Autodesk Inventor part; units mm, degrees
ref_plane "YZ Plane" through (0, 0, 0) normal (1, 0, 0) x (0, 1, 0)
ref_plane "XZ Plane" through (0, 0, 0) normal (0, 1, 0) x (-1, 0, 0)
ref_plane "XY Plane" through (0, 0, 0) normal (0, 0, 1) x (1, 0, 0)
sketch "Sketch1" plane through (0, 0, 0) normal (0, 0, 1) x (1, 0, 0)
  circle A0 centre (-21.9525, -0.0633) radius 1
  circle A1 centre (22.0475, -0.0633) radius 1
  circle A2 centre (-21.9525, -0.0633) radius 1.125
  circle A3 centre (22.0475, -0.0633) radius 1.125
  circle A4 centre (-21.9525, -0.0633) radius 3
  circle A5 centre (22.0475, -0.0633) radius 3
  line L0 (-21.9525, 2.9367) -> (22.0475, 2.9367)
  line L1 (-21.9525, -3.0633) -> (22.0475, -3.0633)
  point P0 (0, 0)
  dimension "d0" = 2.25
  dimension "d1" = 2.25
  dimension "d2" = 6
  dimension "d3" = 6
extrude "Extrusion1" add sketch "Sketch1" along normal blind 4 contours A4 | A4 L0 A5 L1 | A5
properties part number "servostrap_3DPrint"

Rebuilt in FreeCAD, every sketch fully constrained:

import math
import FreeCAD as App
import Part
import Sketcher
from FreeCAD import Vector
Q = App.Units.Quantity

doc = App.newDocument("Part")
body = doc.addObject("PartDesign::Body", "Body")

sketch1 = body.newObject("Sketcher::SketchObject", "Sketch")
sketch1.AttachmentSupport = (doc.getObject("XY_Plane"), [""])
sketch1.MapMode = "FlatFace"
sketch1.addGeometry([
    Part.ArcOfCircle(Part.Circle(Vector(-22, -0.1, 0), Vector(0, 0, 1), 3), math.radians(90), math.radians(270)),
    Part.LineSegment(Vector(-22, -3.1, 0), Vector(22, -3.1, 0)),
    Part.ArcOfCircle(Part.Circle(Vector(22, -0.1, 0), Vector(0, 0, 1), 3), math.radians(-90), math.radians(90)),
    Part.LineSegment(Vector(22, 2.9, 0), Vector(-22, 2.9, 0)),
    Part.Circle(Vector(-22, -0.1, 0), Vector(0, 0, 1), 1.1),
    Part.Circle(Vector(22, -0.1, 0), Vector(0, 0, 1), 1.1),
], False)
sketch1.addConstraint([
    Sketcher.Constraint("Tangent", 0, 2, 1, 1),
    Sketcher.Constraint("Tangent", 1, 2, 2, 1),
    Sketcher.Constraint("Tangent", 2, 2, 3, 1),
    Sketcher.Constraint("Tangent", 3, 2, 0, 1),
    Sketcher.Constraint("Horizontal", 1),
    Sketcher.Constraint("Horizontal", 3),
    Sketcher.Constraint("Coincident", 4, 3, 0, 3),
    Sketcher.Constraint("Coincident", 5, 3, 2, 3),
    Sketcher.Constraint("Equal", 4, 5),
    Sketcher.Constraint("Radius", 0, Q("3 mm")),
    Sketcher.Constraint("Diameter", 4, Q("2.25 mm")),
    Sketcher.Constraint("DistanceX", 1, 1, 1, 2, Q("44 mm")),
    Sketcher.Constraint("DistanceX", 0, 3, -1, 1, Q("21.9525 mm")),
    Sketcher.Constraint("DistanceY", 0, 3, -1, 1, Q("0.0633 mm")),
])
pad1 = body.newObject("PartDesign::Pad", "Pad")
pad1.Profile = sketch1
pad1.Length = 4

doc.recompute()
